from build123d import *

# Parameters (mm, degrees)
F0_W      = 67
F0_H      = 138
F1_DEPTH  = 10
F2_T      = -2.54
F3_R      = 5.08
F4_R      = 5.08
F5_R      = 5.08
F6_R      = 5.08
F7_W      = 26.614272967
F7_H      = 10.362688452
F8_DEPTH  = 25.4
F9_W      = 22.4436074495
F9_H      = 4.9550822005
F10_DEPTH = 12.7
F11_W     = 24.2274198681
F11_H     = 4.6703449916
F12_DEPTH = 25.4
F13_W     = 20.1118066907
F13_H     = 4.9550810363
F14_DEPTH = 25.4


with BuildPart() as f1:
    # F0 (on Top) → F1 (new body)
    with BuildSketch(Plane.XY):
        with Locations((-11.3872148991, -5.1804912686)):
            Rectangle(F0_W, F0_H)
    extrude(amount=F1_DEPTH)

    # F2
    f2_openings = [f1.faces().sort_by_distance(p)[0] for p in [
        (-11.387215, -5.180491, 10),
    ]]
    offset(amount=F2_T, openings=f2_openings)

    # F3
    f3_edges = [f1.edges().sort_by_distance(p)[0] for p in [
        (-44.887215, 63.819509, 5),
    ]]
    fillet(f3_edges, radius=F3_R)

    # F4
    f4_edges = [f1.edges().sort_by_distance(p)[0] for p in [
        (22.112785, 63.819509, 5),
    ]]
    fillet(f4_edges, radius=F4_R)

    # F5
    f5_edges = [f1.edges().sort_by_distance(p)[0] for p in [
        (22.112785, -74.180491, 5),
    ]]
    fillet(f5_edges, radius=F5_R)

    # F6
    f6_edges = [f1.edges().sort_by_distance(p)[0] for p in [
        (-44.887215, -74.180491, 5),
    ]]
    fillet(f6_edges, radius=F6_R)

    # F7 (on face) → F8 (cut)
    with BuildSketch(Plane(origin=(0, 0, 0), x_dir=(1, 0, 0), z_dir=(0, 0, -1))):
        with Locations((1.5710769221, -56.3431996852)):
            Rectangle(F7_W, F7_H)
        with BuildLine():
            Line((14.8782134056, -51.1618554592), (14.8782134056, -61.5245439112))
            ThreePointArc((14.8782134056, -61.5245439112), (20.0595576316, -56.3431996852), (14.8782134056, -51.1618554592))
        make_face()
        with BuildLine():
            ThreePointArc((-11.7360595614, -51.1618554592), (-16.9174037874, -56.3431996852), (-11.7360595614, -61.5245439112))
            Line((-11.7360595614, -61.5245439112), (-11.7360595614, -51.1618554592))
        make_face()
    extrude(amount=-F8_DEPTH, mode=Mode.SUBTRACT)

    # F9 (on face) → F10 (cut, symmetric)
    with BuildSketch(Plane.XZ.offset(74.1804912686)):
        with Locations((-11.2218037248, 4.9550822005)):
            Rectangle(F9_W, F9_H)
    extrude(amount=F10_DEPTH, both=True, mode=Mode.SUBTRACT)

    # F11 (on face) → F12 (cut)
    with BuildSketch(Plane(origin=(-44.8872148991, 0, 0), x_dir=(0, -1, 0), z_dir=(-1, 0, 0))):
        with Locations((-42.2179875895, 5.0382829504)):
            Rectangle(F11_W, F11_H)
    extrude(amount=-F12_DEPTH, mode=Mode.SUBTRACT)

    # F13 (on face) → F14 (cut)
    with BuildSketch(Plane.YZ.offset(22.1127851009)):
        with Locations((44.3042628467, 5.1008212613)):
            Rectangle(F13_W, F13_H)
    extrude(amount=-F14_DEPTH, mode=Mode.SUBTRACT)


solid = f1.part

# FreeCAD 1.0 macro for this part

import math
import FreeCAD as App
import Part
import Sketcher
Q = App.Units.Quantity


def edges_at(feature, points):
    """Names of the edges that pass closest to the given points."""
    edges = feature.Shape.Edges
    near = lambda p: min(range(len(edges)), key=lambda i: edges[i].distToShape(Part.Vertex(*p))[0])
    return sorted({f"Edge{near(p) + 1}" for p in points})


def faces_at(feature, points):
    """Names of the faces that lie closest to the given points."""
    faces = feature.Shape.Faces
    near = lambda p: min(range(len(faces)), key=lambda i: faces[i].distToShape(Part.Vertex(*p))[0])
    return sorted({f"Face{near(p) + 1}" for p in points})

doc = App.newDocument("Part")
body = doc.addObject("PartDesign::Body", "Body")

sketch1 = body.newObject("Sketcher::SketchObject", "Sketch")
sketch1.AttachmentSupport = (doc.getObject("XY_Plane"), [""])
sketch1.MapMode = "FlatFace"
sketch1.addGeometry([
    Part.LineSegment(App.Vector(-44.887215, 63.819509, 0), App.Vector(-44.887215, -74.180491, 0)),
    Part.LineSegment(App.Vector(-44.887215, -74.180491, 0), App.Vector(22.112785, -74.180491, 0)),
    Part.LineSegment(App.Vector(22.112785, -74.180491, 0), App.Vector(22.112785, 63.819509, 0)),
    Part.LineSegment(App.Vector(22.112785, 63.819509, 0), App.Vector(-44.887215, 63.819509, 0)),
], False)
sketch1.addConstraint([
    Sketcher.Constraint("Coincident", 0, 2, 1, 1),
    Sketcher.Constraint("Coincident", 1, 2, 2, 1),
    Sketcher.Constraint("Coincident", 2, 2, 3, 1),
    Sketcher.Constraint("Coincident", 3, 2, 0, 1),
    Sketcher.Constraint("Vertical", 0),
    Sketcher.Constraint("Horizontal", 1),
    Sketcher.Constraint("Vertical", 2),
    Sketcher.Constraint("Horizontal", 3),
    Sketcher.Constraint("DistanceX", 1, 1, 1, 2, 67.0),
    Sketcher.Constraint("DistanceY", 0, 2, 0, 1, 138.0),
    Sketcher.Constraint("DistanceY", 0, 2, -1, 1, 74.180491),
    Sketcher.Constraint("DistanceX", 0, 2, -1, 1, 44.887215),
])
pad1 = body.newObject("PartDesign::Pad", "Pad")
pad1.Profile = sketch1
pad1.Length = 10
doc.recompute()

thickness = body.newObject("PartDesign::Thickness", "Thickness")
thickness.Base = (pad1, faces_at(pad1, [(-11.387, -5.18, 10)]))
thickness.Value = Q("0.1 in")
thickness.Reversed = True
thickness.Join = "Arc"
doc.recompute()

fillet = body.newObject("PartDesign::Fillet", "Fillet")
fillet.Base = (thickness, edges_at(thickness, [(-44.887, 63.82, 5)]))
fillet.Radius = Q("0.2 in")
doc.recompute()

fillet2 = body.newObject("PartDesign::Fillet", "Fillet001")
fillet2.Base = (fillet, edges_at(fillet, [(22.113, 63.82, 5)]))
fillet2.Radius = Q("0.2 in")
doc.recompute()

fillet3 = body.newObject("PartDesign::Fillet", "Fillet002")
fillet3.Base = (fillet2, edges_at(fillet2, [(22.113, -74.18, 5)]))
fillet3.Radius = Q("0.2 in")
doc.recompute()

fillet4 = body.newObject("PartDesign::Fillet", "Fillet003")
fillet4.Base = (fillet3, edges_at(fillet3, [(-44.887, -74.18, 5)]))
fillet4.Radius = Q("0.2 in")

sketch2 = body.newObject("Sketcher::SketchObject", "Sketch001")
sketch2.AttachmentSupport = (doc.getObject("XY_Plane"), [""])
sketch2.MapMode = "FlatFace"
sketch2.addGeometry([
    Part.LineSegment(App.Vector(-11.73606, 61.524544, 0), App.Vector(14.878213, 61.524544, 0)),
    Part.ArcOfCircle(Part.Circle(App.Vector(14.878213, 56.3432, 0), App.Vector(0, 0, 1), 5.181344), math.radians(-90), math.radians(90)),
    Part.LineSegment(App.Vector(14.878213, 51.161855, 0), App.Vector(-11.73606, 51.161855, 0)),
    Part.ArcOfCircle(Part.Circle(App.Vector(-11.73606, 56.3432, 0), App.Vector(0, 0, 1), 5.181344), math.radians(90), math.radians(270)),
], False)
sketch2.addConstraint([
    Sketcher.Constraint("Tangent", 0, 2, 1, 2),
    Sketcher.Constraint("Tangent", 1, 1, 2, 1),
    Sketcher.Constraint("Tangent", 2, 2, 3, 2),
    Sketcher.Constraint("Tangent", 3, 1, 0, 1),
    Sketcher.Constraint("Horizontal", 0),
    Sketcher.Constraint("Horizontal", 2),
    Sketcher.Constraint("Radius", 1, 5.181344),
    Sketcher.Constraint("DistanceY", -1, 1, 1, 3, 56.3432),
    Sketcher.Constraint("DistanceX", 0, 1, 0, 2, 26.614273),
    Sketcher.Constraint("DistanceX", 3, 3, -1, 1, 11.73606),
])
pocket1 = body.newObject("PartDesign::Pocket", "Pocket")
pocket1.Profile = sketch2
pocket1.Length = Q("1 in")
pocket1.Reversed = True

sketch3 = body.newObject("Sketcher::SketchObject", "Sketch002")
sketch3.AttachmentSupport = (doc.getObject("XZ_Plane"), [""])
sketch3.MapMode = "FlatFace"
sketch3.AttachmentOffset = App.Placement(App.Vector(0, 0, 74.180491), App.Rotation())
sketch3.addGeometry([
    Part.LineSegment(App.Vector(-22.443607, 7.432623, 0), App.Vector(-22.443607, 2.477541, 0)),
    Part.LineSegment(App.Vector(-22.443607, 2.477541, 0), App.Vector(0, 2.477541, 0)),
    Part.LineSegment(App.Vector(0, 2.477541, 0), App.Vector(0, 7.432623, 0)),
    Part.LineSegment(App.Vector(0, 7.432623, 0), App.Vector(-22.443607, 7.432623, 0)),
], False)
sketch3.addConstraint([
    Sketcher.Constraint("Coincident", 0, 2, 1, 1),
    Sketcher.Constraint("Coincident", 1, 2, 2, 1),
    Sketcher.Constraint("Coincident", 2, 2, 3, 1),
    Sketcher.Constraint("Coincident", 3, 2, 0, 1),
    Sketcher.Constraint("Vertical", 0),
    Sketcher.Constraint("Horizontal", 1),
    Sketcher.Constraint("Vertical", 2),
    Sketcher.Constraint("Horizontal", 3),
    Sketcher.Constraint("PointOnObject", 1, 2, -2),
    Sketcher.Constraint("DistanceX", 1, 1, 1, 2, 22.443607),
    Sketcher.Constraint("DistanceY", 0, 2, 0, 1, 4.955082),
    Sketcher.Constraint("DistanceY", -1, 1, 0, 2, 2.477541),
])
pocket2 = body.newObject("PartDesign::Pocket", "Pocket001")
pocket2.Profile = sketch3
pocket2.Length = Q("1 in")
pocket2.Midplane = True

sketch4 = body.newObject("Sketcher::SketchObject", "Sketch003")
sketch4.AttachmentSupport = (doc.getObject("YZ_Plane"), [""])
sketch4.MapMode = "FlatFace"
sketch4.AttachmentOffset = App.Placement(App.Vector(0, 0, -44.887215), App.Rotation())
sketch4.addGeometry([
    Part.LineSegment(App.Vector(54.331698, 7.373455, 0), App.Vector(54.331698, 2.70311, 0)),
    Part.LineSegment(App.Vector(54.331698, 2.70311, 0), App.Vector(30.104278, 2.70311, 0)),
    Part.LineSegment(App.Vector(30.104278, 2.70311, 0), App.Vector(30.104278, 7.373455, 0)),
    Part.LineSegment(App.Vector(30.104278, 7.373455, 0), App.Vector(54.331698, 7.373455, 0)),
], False)
sketch4.addConstraint([
    Sketcher.Constraint("Coincident", 0, 2, 1, 1),
    Sketcher.Constraint("Coincident", 1, 2, 2, 1),
    Sketcher.Constraint("Coincident", 2, 2, 3, 1),
    Sketcher.Constraint("Coincident", 3, 2, 0, 1),
    Sketcher.Constraint("Vertical", 0),
    Sketcher.Constraint("Horizontal", 1),
    Sketcher.Constraint("Vertical", 2),
    Sketcher.Constraint("Horizontal", 3),
    Sketcher.Constraint("DistanceX", 1, 2, 1, 1, 24.22742),
    Sketcher.Constraint("DistanceY", 0, 2, 0, 1, 4.670345),
    Sketcher.Constraint("DistanceY", -1, 1, 0, 2, 2.70311),
    Sketcher.Constraint("DistanceX", -1, 1, 0, 2, 54.331698),
])
pocket3 = body.newObject("PartDesign::Pocket", "Pocket002")
pocket3.Profile = sketch4
pocket3.Length = Q("1 in")
pocket3.Reversed = True

sketch5 = body.newObject("Sketcher::SketchObject", "Sketch004")
sketch5.AttachmentSupport = (doc.getObject("YZ_Plane"), [""])
sketch5.MapMode = "FlatFace"
sketch5.AttachmentOffset = App.Placement(App.Vector(0, 0, 22.112785), App.Rotation())
sketch5.addGeometry([
    Part.LineSegment(App.Vector(34.24836, 7.578362, 0), App.Vector(34.24836, 2.623281, 0)),
    Part.LineSegment(App.Vector(34.24836, 2.623281, 0), App.Vector(54.360166, 2.623281, 0)),
    Part.LineSegment(App.Vector(54.360166, 2.623281, 0), App.Vector(54.360166, 7.578362, 0)),
    Part.LineSegment(App.Vector(54.360166, 7.578362, 0), App.Vector(34.24836, 7.578362, 0)),
], False)
sketch5.addConstraint([
    Sketcher.Constraint("Coincident", 0, 2, 1, 1),
    Sketcher.Constraint("Coincident", 1, 2, 2, 1),
    Sketcher.Constraint("Coincident", 2, 2, 3, 1),
    Sketcher.Constraint("Coincident", 3, 2, 0, 1),
    Sketcher.Constraint("Vertical", 0),
    Sketcher.Constraint("Horizontal", 1),
    Sketcher.Constraint("Vertical", 2),
    Sketcher.Constraint("Horizontal", 3),
    Sketcher.Constraint("DistanceY", 0, 2, 0, 1, 4.955081),
    Sketcher.Constraint("DistanceX", 1, 1, 1, 2, 20.111807),
    Sketcher.Constraint("DistanceX", -1, 1, 0, 2, 34.24836),
    Sketcher.Constraint("DistanceY", -1, 1, 0, 2, 2.623281),
])
pocket4 = body.newObject("PartDesign::Pocket", "Pocket003")
pocket4.Profile = sketch5
pocket4.Length = Q("1 in")

doc.recompute()
